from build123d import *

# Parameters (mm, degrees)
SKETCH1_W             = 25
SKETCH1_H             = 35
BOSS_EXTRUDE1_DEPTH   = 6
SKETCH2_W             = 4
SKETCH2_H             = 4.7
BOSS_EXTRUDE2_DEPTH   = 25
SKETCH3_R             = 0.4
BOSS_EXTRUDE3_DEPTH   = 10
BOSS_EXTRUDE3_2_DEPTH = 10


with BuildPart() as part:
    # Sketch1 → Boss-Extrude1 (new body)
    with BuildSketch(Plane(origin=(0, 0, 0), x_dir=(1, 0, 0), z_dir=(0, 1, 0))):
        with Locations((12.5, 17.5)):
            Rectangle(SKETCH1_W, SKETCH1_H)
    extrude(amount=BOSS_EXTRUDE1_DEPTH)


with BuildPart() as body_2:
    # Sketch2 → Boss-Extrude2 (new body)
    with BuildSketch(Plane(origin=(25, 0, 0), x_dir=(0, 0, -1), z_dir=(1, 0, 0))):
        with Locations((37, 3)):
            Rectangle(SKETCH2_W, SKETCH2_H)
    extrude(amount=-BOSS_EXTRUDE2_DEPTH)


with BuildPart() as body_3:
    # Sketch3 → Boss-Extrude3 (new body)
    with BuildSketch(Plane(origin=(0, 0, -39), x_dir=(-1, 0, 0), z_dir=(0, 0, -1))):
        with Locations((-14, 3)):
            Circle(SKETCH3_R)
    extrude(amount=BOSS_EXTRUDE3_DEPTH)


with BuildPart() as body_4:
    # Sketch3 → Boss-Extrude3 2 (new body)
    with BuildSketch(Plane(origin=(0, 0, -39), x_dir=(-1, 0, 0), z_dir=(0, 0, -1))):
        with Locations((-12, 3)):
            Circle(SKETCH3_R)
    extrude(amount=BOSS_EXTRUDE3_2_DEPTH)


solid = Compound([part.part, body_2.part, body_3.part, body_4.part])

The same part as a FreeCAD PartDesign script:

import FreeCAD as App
import Part
import Sketcher
from FreeCAD import Vector

doc = App.newDocument("Part")
body = doc.addObject("PartDesign::Body", "Body")

sketch1 = body.newObject("Sketcher::SketchObject", "Sketch")
sketch1.AttachmentSupport = (doc.getObject("XZ_Plane"), [""])
sketch1.MapMode = "FlatFace"
sketch1.addGeometry(Part.LineSegment(Vector(0, -35, 0), Vector(0, 0, 0)), False)
sketch1.addGeometry(Part.LineSegment(Vector(0, 0, 0), Vector(25, 0, 0)), False)
sketch1.addGeometry(Part.LineSegment(Vector(25, 0, 0), Vector(25, -35, 0)), False)
sketch1.addGeometry(Part.LineSegment(Vector(25, -35, 0), Vector(0, -35, 0)), False)
sketch1.addConstraint(Sketcher.Constraint("Coincident", 0, 2, 1, 1))
sketch1.addConstraint(Sketcher.Constraint("Coincident", 1, 2, 2, 1))
sketch1.addConstraint(Sketcher.Constraint("Coincident", 2, 2, 3, 1))
sketch1.addConstraint(Sketcher.Constraint("Coincident", 3, 2, 0, 1))
sketch1.addConstraint(Sketcher.Constraint("Vertical", 0))
sketch1.addConstraint(Sketcher.Constraint("Horizontal", 1))
sketch1.addConstraint(Sketcher.Constraint("Vertical", 2))
sketch1.addConstraint(Sketcher.Constraint("Horizontal", 3))
sketch1.addConstraint(Sketcher.Constraint("Coincident", 0, 2, -1, 1))
sketch1.addConstraint(Sketcher.Constraint("DistanceX", 1, 1, 1, 2, 25.0))
sketch1.addConstraint(Sketcher.Constraint("DistanceY", 0, 1, 0, 2, 35.0))
pad1 = body.newObject("PartDesign::Pad", "Pad")
pad1.Profile = sketch1
pad1.Length = 6
pad1.Reversed = True
body2 = doc.addObject("PartDesign::Body", "Body001")

sketch2 = body2.newObject("Sketcher::SketchObject", "Sketch001")
sketch2.AttachmentSupport = (doc.getObject("YZ_Plane001"), [""])
sketch2.MapMode = "FlatFace"
sketch2.AttachmentOffset = App.Placement(Vector(0, 0, 25), App.Rotation())
sketch2.addGeometry(Part.LineSegment(Vector(5.3, -35, 0), Vector(0.7, -35, 0)), False)
sketch2.addGeometry(Part.LineSegment(Vector(0.7, -35, 0), Vector(0.7, -39, 0)), False)
sketch2.addGeometry(Part.LineSegment(Vector(0.7, -39, 0), Vector(5.3, -39, 0)), False)
sketch2.addGeometry(Part.LineSegment(Vector(5.3, -39, 0), Vector(5.3, -35, 0)), False)
sketch2.addConstraint(Sketcher.Constraint("Coincident", 0, 2, 1, 1))
sketch2.addConstraint(Sketcher.Constraint("Coincident", 1, 2, 2, 1))
sketch2.addConstraint(Sketcher.Constraint("Coincident", 2, 2, 3, 1))
sketch2.addConstraint(Sketcher.Constraint("Coincident", 3, 2, 0, 1))
sketch2.addConstraint(Sketcher.Constraint("Horizontal", 0))
sketch2.addConstraint(Sketcher.Constraint("Vertical", 1))
sketch2.addConstraint(Sketcher.Constraint("Horizontal", 2))
sketch2.addConstraint(Sketcher.Constraint("Vertical", 3))
sketch2.addConstraint(Sketcher.Constraint("DistanceY", 1, 2, 1, 1, 4.0))
sketch2.addConstraint(Sketcher.Constraint("DistanceX", 0, 2, 0, 1, 4.7))
sketch2.addConstraint(Sketcher.Constraint("DistanceY", 0, 2, -1, 1, 35.0))
sketch2.addConstraint(Sketcher.Constraint("DistanceX", -1, 1, 0, 2, 0.65))
pad2 = body2.newObject("PartDesign::Pad", "Pad001")
pad2.Profile = sketch2
pad2.Length = 25
pad2.Reversed = True
body3 = doc.addObject("PartDesign::Body", "Body002")

sketch3 = body3.newObject("Sketcher::SketchObject", "Sketch002")
sketch3.AttachmentSupport = (doc.getObject("XY_Plane002"), [""])
sketch3.MapMode = "FlatFace"
sketch3.AttachmentOffset = App.Placement(Vector(0, 0, -39), App.Rotation())
sketch3.addGeometry(Part.Circle(Vector(14, 3, 0), Vector(0, 0, 1), 0.4), False)
sketch3.addConstraint(Sketcher.Constraint("Diameter", 0, 0.8))
sketch3.addConstraint(Sketcher.Constraint("DistanceX", -1, 1, 0, 3, 14.0))
sketch3.addConstraint(Sketcher.Constraint("DistanceY", -1, 1, 0, 3, 3.0))
pad3 = body3.newObject("PartDesign::Pad", "Pad002")
pad3.Profile = sketch3
pad3.Length = 10
pad3.Reversed = True
body4 = doc.addObject("PartDesign::Body", "Body003")

sketch4 = body4.newObject("Sketcher::SketchObject", "Sketch003")
sketch4.AttachmentSupport = (doc.getObject("XY_Plane003"), [""])
sketch4.MapMode = "FlatFace"
sketch4.AttachmentOffset = App.Placement(Vector(0, 0, -39), App.Rotation())
sketch4.addGeometry(Part.Circle(Vector(12, 3, 0), Vector(0, 0, 1), 0.4), False)
sketch4.addConstraint(Sketcher.Constraint("Diameter", 0, 0.8))
sketch4.addConstraint(Sketcher.Constraint("DistanceX", -1, 1, 0, 3, 12.0))
sketch4.addConstraint(Sketcher.Constraint("DistanceY", -1, 1, 0, 3, 3.0))
pad4 = body4.newObject("PartDesign::Pad", "Pad003")
pad4.Profile = sketch4
pad4.Length = 10
pad4.Reversed = True

doc.recompute()
